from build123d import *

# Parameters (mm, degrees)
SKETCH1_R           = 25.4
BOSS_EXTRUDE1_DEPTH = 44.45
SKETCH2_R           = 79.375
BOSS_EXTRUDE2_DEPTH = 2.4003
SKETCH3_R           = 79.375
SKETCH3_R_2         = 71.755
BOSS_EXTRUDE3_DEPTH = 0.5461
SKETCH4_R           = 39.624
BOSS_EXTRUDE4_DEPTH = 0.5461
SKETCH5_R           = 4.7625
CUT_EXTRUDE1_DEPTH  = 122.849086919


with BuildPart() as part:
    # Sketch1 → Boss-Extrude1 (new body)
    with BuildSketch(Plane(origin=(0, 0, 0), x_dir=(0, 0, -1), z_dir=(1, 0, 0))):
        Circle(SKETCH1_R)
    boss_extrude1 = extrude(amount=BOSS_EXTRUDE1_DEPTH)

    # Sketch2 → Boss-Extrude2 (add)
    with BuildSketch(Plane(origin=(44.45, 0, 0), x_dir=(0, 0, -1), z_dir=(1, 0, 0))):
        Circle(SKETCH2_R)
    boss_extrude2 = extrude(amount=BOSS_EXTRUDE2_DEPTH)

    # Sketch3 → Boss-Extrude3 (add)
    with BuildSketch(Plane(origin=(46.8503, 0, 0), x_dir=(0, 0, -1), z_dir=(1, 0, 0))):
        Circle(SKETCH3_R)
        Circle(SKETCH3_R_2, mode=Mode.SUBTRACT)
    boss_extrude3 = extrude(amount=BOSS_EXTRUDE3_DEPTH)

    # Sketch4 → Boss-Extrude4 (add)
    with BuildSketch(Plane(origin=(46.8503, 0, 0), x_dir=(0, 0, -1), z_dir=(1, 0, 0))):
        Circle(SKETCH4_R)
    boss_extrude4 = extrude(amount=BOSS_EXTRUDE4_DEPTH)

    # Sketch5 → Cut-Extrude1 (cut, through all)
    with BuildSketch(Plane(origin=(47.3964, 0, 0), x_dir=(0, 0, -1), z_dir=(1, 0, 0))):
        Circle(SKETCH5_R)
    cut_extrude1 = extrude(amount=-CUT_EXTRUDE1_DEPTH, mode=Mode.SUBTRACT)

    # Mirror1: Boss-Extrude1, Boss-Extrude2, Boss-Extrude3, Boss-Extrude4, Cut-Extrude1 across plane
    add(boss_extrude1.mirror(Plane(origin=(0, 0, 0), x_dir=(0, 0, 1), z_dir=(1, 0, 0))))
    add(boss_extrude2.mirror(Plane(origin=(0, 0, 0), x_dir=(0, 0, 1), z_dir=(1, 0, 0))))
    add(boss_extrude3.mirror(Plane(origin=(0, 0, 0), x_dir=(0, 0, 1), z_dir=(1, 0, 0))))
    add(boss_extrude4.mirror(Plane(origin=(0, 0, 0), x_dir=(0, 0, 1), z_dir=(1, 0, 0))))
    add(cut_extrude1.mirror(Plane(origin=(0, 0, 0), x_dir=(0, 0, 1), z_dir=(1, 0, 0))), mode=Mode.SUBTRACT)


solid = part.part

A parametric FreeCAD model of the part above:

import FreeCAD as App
import Part
import Sketcher
from FreeCAD import Vector
Q = App.Units.Quantity

doc = App.newDocument("Part")
body = doc.addObject("PartDesign::Body", "Body")

sketch1 = body.newObject("Sketcher::SketchObject", "Sketch")
sketch1.AttachmentSupport = (doc.getObject("YZ_Plane"), [""])
sketch1.MapMode = "FlatFace"
sketch1.addGeometry(Part.Circle(Vector(0, 0, 0), Vector(0, 0, 1), 25.4), False)
sketch1.addConstraint([
    Sketcher.Constraint("Coincident", 0, 3, -1, 1),
    Sketcher.Constraint("Diameter", 0, Q("2 in")),
])
pad1 = body.newObject("PartDesign::Pad", "Pad")
pad1.Profile = sketch1
pad1.Length = Q("1.75 in")

sketch2 = body.newObject("Sketcher::SketchObject", "Sketch001")
sketch2.AttachmentSupport = (doc.getObject("YZ_Plane"), [""])
sketch2.MapMode = "FlatFace"
sketch2.AttachmentOffset = App.Placement(Vector(0, 0, 1.75 * 25.4), App.Rotation())
sketch2.addGeometry(Part.Circle(Vector(0, 0, 0), Vector(0, 0, 1), 79.375), False)
sketch2.addConstraint([
    Sketcher.Constraint("Coincident", 0, 3, -1, 1),
    Sketcher.Constraint("Diameter", 0, Q("6.25 in")),
])
pad2 = body.newObject("PartDesign::Pad", "Pad001")
pad2.Profile = sketch2
pad2.Length = Q("0.0945 in")

sketch3 = body.newObject("Sketcher::SketchObject", "Sketch002")
sketch3.AttachmentSupport = (doc.getObject("YZ_Plane"), [""])
sketch3.MapMode = "FlatFace"
sketch3.AttachmentOffset = App.Placement(Vector(0, 0, 1.8445 * 25.4), App.Rotation())
sketch3.addGeometry([
    Part.Circle(Vector(0, 0, 0), Vector(0, 0, 1), 79.375),
    Part.Circle(Vector(0, 0, 0), Vector(0, 0, 1), 71.755),
], False)
sketch3.addConstraint([
    Sketcher.Constraint("Coincident", 0, 3, -1, 1),
    Sketcher.Constraint("Coincident", 1, 3, -1, 1),
    Sketcher.Constraint("Diameter", 0, Q("6.25 in")),
    Sketcher.Constraint("Diameter", 1, Q("5.65 in")),
])
pad3 = body.newObject("PartDesign::Pad", "Pad002")
pad3.Profile = sketch3
pad3.Length = Q("0.0215 in")

sketch4 = body.newObject("Sketcher::SketchObject", "Sketch003")
sketch4.AttachmentSupport = (doc.getObject("YZ_Plane"), [""])
sketch4.MapMode = "FlatFace"
sketch4.AttachmentOffset = App.Placement(Vector(0, 0, 1.8445 * 25.4), App.Rotation())
sketch4.addGeometry(Part.Circle(Vector(0, 0, 0), Vector(0, 0, 1), 39.624), False)
sketch4.addConstraint([
    Sketcher.Constraint("Coincident", 0, 3, -1, 1),
    Sketcher.Constraint("Diameter", 0, Q("3.12 in")),
])
pad4 = body.newObject("PartDesign::Pad", "Pad003")
pad4.Profile = sketch4
pad4.Length = Q("0.0215 in")

sketch5 = body.newObject("Sketcher::SketchObject", "Sketch004")
sketch5.AttachmentSupport = (doc.getObject("YZ_Plane"), [""])
sketch5.MapMode = "FlatFace"
sketch5.AttachmentOffset = App.Placement(Vector(0, 0, 1.866 * 25.4), App.Rotation())
sketch5.addGeometry(Part.Circle(Vector(0, 0, 0), Vector(0, 0, 1), 4.7625), False)
sketch5.addConstraint([
    Sketcher.Constraint("Coincident", 0, 3, -1, 1),
    Sketcher.Constraint("Diameter", 0, Q("0.375 in")),
])
pocket1 = body.newObject("PartDesign::Pocket", "Pocket")
pocket1.Profile = sketch5
pocket1.Type = "ThroughAll"
doc.recompute()

mirrored = body.newObject("PartDesign::Mirrored", "Mirrored")
mirrored.Originals = [pad1, pad2, pad3, pad4, pocket1]
mirrored.MirrorPlane = (doc.getObject("YZ_Plane"), [""])
body.Tip = mirrored

doc.recompute()
